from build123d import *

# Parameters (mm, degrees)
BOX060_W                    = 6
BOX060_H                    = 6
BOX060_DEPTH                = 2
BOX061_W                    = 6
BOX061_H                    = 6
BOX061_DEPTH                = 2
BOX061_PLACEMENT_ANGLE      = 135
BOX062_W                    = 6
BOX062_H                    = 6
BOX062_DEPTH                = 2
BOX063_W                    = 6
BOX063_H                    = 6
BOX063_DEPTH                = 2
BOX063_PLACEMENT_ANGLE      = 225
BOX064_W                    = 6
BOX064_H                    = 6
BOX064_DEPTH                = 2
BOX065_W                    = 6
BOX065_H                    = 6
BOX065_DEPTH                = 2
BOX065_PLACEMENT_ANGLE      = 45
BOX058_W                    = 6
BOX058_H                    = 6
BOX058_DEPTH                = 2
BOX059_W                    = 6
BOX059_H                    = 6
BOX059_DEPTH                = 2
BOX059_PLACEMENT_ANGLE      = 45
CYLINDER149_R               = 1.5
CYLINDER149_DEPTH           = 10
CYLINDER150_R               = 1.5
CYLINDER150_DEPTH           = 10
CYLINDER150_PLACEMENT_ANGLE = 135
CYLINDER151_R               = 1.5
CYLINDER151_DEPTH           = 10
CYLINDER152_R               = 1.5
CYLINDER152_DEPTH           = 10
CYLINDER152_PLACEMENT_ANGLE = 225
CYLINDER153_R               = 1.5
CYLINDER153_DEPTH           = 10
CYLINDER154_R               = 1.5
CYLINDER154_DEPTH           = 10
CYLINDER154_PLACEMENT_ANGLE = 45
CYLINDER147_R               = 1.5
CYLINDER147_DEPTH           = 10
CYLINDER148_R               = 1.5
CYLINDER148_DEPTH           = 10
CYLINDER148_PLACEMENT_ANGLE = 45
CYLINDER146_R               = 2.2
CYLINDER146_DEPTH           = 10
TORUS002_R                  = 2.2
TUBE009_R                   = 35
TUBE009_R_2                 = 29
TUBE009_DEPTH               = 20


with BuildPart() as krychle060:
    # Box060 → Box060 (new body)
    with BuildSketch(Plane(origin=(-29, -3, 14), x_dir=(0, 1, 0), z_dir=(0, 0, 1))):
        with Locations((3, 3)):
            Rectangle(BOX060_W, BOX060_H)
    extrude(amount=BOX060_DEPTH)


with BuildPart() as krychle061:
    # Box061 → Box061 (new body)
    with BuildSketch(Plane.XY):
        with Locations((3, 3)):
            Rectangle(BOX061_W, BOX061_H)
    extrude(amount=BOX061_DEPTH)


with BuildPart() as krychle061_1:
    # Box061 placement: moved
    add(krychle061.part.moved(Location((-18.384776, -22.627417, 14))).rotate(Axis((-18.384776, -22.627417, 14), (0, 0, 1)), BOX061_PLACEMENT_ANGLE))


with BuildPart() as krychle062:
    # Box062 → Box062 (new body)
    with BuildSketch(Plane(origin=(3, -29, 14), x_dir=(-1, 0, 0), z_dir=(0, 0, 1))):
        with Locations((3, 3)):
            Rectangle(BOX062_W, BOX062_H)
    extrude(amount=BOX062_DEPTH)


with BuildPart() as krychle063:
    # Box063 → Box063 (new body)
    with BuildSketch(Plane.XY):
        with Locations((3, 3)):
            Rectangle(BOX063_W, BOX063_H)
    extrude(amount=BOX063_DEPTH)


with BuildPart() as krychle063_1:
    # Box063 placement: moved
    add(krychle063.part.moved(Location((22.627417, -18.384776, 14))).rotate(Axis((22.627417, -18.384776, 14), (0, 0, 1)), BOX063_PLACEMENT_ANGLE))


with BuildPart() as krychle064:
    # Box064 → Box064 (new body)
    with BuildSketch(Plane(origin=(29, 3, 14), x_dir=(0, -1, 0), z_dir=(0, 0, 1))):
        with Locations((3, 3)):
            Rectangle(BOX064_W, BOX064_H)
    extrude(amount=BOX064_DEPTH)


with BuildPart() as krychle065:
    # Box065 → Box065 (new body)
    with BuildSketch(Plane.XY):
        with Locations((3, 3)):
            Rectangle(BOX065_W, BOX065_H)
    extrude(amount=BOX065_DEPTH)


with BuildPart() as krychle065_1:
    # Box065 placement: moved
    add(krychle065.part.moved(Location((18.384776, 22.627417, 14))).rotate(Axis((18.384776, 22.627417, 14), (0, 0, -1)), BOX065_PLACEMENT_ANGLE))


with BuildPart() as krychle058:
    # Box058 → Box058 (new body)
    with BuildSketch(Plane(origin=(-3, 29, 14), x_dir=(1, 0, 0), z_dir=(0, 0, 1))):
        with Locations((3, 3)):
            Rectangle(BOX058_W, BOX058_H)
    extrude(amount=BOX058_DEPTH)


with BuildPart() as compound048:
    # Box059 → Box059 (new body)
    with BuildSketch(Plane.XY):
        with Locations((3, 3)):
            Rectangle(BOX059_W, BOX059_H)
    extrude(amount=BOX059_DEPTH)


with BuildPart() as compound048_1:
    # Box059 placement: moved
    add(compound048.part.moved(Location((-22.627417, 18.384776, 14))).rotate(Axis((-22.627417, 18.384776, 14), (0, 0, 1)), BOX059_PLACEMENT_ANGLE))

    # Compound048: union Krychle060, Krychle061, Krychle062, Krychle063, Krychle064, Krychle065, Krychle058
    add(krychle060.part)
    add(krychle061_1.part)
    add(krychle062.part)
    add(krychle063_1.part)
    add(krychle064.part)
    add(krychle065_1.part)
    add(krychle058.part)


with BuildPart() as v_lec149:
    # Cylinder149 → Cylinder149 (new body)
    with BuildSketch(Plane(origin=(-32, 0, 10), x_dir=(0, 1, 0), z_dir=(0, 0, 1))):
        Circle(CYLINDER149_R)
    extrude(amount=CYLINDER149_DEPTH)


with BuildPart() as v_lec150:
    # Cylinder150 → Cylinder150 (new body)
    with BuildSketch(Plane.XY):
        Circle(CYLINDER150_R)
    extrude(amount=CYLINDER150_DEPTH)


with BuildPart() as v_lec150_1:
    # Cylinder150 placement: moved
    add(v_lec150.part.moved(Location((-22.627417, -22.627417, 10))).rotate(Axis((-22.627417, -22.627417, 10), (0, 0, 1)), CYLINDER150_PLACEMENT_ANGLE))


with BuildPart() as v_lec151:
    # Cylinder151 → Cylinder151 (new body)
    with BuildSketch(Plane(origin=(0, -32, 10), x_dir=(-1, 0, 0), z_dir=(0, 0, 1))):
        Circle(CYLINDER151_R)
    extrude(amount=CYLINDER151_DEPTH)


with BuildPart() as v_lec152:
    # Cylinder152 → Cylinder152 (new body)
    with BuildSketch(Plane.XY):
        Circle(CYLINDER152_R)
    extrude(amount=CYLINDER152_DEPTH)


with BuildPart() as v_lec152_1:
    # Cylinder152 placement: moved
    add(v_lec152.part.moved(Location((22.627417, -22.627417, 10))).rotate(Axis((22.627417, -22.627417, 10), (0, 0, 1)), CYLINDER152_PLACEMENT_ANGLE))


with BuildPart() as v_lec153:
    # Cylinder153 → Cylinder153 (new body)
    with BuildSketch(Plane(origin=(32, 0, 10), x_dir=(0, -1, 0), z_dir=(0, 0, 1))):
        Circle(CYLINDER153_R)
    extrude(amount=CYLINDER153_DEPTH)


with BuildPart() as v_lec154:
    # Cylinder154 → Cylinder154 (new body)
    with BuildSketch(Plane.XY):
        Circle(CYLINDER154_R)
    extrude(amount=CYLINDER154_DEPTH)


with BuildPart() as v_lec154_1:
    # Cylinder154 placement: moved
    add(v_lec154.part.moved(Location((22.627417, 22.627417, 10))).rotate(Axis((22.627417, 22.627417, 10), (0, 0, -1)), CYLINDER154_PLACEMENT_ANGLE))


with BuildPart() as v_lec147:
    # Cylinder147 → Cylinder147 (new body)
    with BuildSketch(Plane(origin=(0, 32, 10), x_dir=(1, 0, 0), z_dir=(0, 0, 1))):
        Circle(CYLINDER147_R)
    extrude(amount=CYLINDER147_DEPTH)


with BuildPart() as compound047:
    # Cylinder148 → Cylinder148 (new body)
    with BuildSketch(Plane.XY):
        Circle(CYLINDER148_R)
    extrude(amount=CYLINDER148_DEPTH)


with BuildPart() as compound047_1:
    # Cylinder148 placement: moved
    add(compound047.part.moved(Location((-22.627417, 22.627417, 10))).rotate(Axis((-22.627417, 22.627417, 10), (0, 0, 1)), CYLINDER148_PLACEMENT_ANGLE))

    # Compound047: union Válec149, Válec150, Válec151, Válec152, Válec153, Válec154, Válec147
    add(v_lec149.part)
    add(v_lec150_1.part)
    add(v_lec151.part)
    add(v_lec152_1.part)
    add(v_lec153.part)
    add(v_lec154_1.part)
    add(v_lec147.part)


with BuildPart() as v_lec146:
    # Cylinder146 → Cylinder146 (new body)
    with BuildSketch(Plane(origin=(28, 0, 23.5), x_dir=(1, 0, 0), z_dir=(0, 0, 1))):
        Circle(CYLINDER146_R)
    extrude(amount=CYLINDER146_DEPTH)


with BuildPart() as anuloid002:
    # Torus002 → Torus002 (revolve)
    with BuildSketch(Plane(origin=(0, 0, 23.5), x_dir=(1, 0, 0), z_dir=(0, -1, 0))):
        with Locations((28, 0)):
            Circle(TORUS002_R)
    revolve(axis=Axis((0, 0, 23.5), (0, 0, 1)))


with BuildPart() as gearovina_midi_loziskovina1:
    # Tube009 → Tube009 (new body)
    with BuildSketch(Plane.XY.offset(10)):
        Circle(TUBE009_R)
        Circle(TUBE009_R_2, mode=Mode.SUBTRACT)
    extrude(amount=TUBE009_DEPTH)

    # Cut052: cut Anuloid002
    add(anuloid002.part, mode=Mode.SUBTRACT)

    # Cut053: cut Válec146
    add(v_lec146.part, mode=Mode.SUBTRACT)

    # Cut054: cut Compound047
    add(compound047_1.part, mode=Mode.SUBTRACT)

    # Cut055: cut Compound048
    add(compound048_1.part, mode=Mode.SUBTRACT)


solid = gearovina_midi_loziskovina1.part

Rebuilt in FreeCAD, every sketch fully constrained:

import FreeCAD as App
import Part
import Sketcher
from FreeCAD import Vector

doc = App.newDocument("Part")
body = doc.addObject("PartDesign::Body", "Body")

# Sketch on XY plane
sketch1 = body.newObject("Sketcher::SketchObject", "Sketch")
sketch1.AttachmentSupport = (doc.getObject("XY_Plane"), [""])
sketch1.MapMode = "FlatFace"
sketch1.AttachmentOffset = App.Placement(Vector(0, 0, 14), App.Rotation())
sketch1.addGeometry(Part.LineSegment(Vector(-35, -3, 0), Vector(-29, -3, 0)), False)
sketch1.addGeometry(Part.LineSegment(Vector(-29, -3, 0), Vector(-29, 3, 0)), False)
sketch1.addGeometry(Part.LineSegment(Vector(-29, 3, 0), Vector(-35, 3, 0)), False)
sketch1.addGeometry(Part.LineSegment(Vector(-35, 3, 0), Vector(-35, -3, 0)), False)
sketch1.addConstraint(Sketcher.Constraint("Coincident", 0, 2, 1, 1))
sketch1.addConstraint(Sketcher.Constraint("Coincident", 1, 2, 2, 1))
sketch1.addConstraint(Sketcher.Constraint("Coincident", 2, 2, 3, 1))
sketch1.addConstraint(Sketcher.Constraint("Coincident", 3, 2, 0, 1))
sketch1.addConstraint(Sketcher.Constraint("Horizontal", 0))
sketch1.addConstraint(Sketcher.Constraint("Vertical", 1))
sketch1.addConstraint(Sketcher.Constraint("Horizontal", 2))
sketch1.addConstraint(Sketcher.Constraint("Vertical", 3))
sketch1.addConstraint(Sketcher.Constraint("Equal", 2, 1))
sketch1.addConstraint(Sketcher.Constraint("DistanceX", 0, 1, 0, 2, 6.0))
sketch1.addConstraint(Sketcher.Constraint("DistanceX", 0, 2, -1, 1, 29.0))
sketch1.addConstraint(Sketcher.Constraint("DistanceY", 0, 2, -1, 1, 3.0))
pad1 = body.newObject("PartDesign::Pad", "Pad")
pad1.Profile = sketch1
pad1.Length = 2
body2 = doc.addObject("PartDesign::Body", "Body001")

# Sketch on XY plane
sketch2 = body2.newObject("Sketcher::SketchObject", "Sketch001")
sketch2.AttachmentSupport = (doc.getObject("XY_Plane001"), [""])
sketch2.MapMode = "FlatFace"
sketch2.addGeometry(Part.LineSegment(Vector(0, 6, 0), Vector(0, 0, 0)), False)
sketch2.addGeometry(Part.LineSegment(Vector(0, 0, 0), Vector(6, 0, 0)), False)
sketch2.addGeometry(Part.LineSegment(Vector(6, 0, 0), Vector(6, 6, 0)), False)
sketch2.addGeometry(Part.LineSegment(Vector(6, 6, 0), Vector(0, 6, 0)), False)
sketch2.addConstraint(Sketcher.Constraint("Coincident", 0, 2, 1, 1))
sketch2.addConstraint(Sketcher.Constraint("Coincident", 1, 2, 2, 1))
sketch2.addConstraint(Sketcher.Constraint("Coincident", 2, 2, 3, 1))
sketch2.addConstraint(Sketcher.Constraint("Coincident", 3, 2, 0, 1))
sketch2.addConstraint(Sketcher.Constraint("Vertical", 0))
sketch2.addConstraint(Sketcher.Constraint("Horizontal", 1))
sketch2.addConstraint(Sketcher.Constraint("Vertical", 2))
sketch2.addConstraint(Sketcher.Constraint("Horizontal", 3))
sketch2.addConstraint(Sketcher.Constraint("Coincident", 0, 2, -1, 1))
sketch2.addConstraint(Sketcher.Constraint("Equal", 3, 0))
sketch2.addConstraint(Sketcher.Constraint("DistanceX", 1, 1, 1, 2, 6.0))
pad2 = body2.newObject("PartDesign::Pad", "Pad001")
pad2.Profile = sketch2
pad2.Length = 2
body3 = doc.addObject("PartDesign::Body", "Body002")
doc.recompute()

body2.Placement = App.Placement(Vector(-18.384776, -22.627417, 14), App.Rotation(Vector(0, 0, 1), 135))
boolean = body3.newObject("PartDesign::Boolean", "Boolean")
boolean.Type = "Fuse"
boolean.addObjects([body2])
body4 = doc.addObject("PartDesign::Body", "Body003")

# Sketch on XY plane
sketch3 = body4.newObject("Sketcher::SketchObject", "Sketch002")
sketch3.AttachmentSupport = (doc.getObject("XY_Plane003"), [""])
sketch3.MapMode = "FlatFace"
sketch3.AttachmentOffset = App.Placement(Vector(0, 0, 14), App.Rotation())
sketch3.addGeometry(Part.LineSegment(Vector(3, -35, 0), Vector(3, -29, 0)), False)
sketch3.addGeometry(Part.LineSegment(Vector(3, -29, 0), Vector(-3, -29, 0)), False)
sketch3.addGeometry(Part.LineSegment(Vector(-3, -29, 0), Vector(-3, -35, 0)), False)
sketch3.addGeometry(Part.LineSegment(Vector(-3, -35, 0), Vector(3, -35, 0)), False)
sketch3.addConstraint(Sketcher.Constraint("Coincident", 0, 2, 1, 1))
sketch3.addConstraint(Sketcher.Constraint("Coincident", 1, 2, 2, 1))
sketch3.addConstraint(Sketcher.Constraint("Coincident", 2, 2, 3, 1))
sketch3.addConstraint(Sketcher.Constraint("Coincident", 3, 2, 0, 1))
sketch3.addConstraint(Sketcher.Constraint("Vertical", 0))
sketch3.addConstraint(Sketcher.Constraint("Horizontal", 1))
sketch3.addConstraint(Sketcher.Constraint("Vertical", 2))
sketch3.addConstraint(Sketcher.Constraint("Horizontal", 3))
sketch3.addConstraint(Sketcher.Constraint("Equal", 3, 0))
sketch3.addConstraint(Sketcher.Constraint("DistanceX", 1, 2, 1, 1, 6.0))
sketch3.addConstraint(Sketcher.Constraint("DistanceX", -1, 1, 0, 2, 3.0))
sketch3.addConstraint(Sketcher.Constraint("DistanceY", 0, 2, -1, 1, 29.0))
pad3 = body4.newObject("PartDesign::Pad", "Pad002")
pad3.Profile = sketch3
pad3.Length = 2
body5 = doc.addObject("PartDesign::Body", "Body004")

# Sketch on XY plane
sketch4 = body5.newObject("Sketcher::SketchObject", "Sketch003")
sketch4.AttachmentSupport = (doc.getObject("XY_Plane004"), [""])
sketch4.MapMode = "FlatFace"
sketch4.addGeometry(Part.LineSegment(Vector(0, 6, 0), Vector(0, 0, 0)), False)
sketch4.addGeometry(Part.LineSegment(Vector(0, 0, 0), Vector(6, 0, 0)), False)
sketch4.addGeometry(Part.LineSegment(Vector(6, 0, 0), Vector(6, 6, 0)), False)
sketch4.addGeometry(Part.LineSegment(Vector(6, 6, 0), Vector(0, 6, 0)), False)
sketch4.addConstraint(Sketcher.Constraint("Coincident", 0, 2, 1, 1))
sketch4.addConstraint(Sketcher.Constraint("Coincident", 1, 2, 2, 1))
sketch4.addConstraint(Sketcher.Constraint("Coincident", 2, 2, 3, 1))
sketch4.addConstraint(Sketcher.Constraint("Coincident", 3, 2, 0, 1))
sketch4.addConstraint(Sketcher.Constraint("Vertical", 0))
sketch4.addConstraint(Sketcher.Constraint("Horizontal", 1))
sketch4.addConstraint(Sketcher.Constraint("Vertical", 2))
sketch4.addConstraint(Sketcher.Constraint("Horizontal", 3))
sketch4.addConstraint(Sketcher.Constraint("Coincident", 0, 2, -1, 1))
sketch4.addConstraint(Sketcher.Constraint("Equal", 3, 0))
sketch4.addConstraint(Sketcher.Constraint("DistanceX", 1, 1, 1, 2, 6.0))
pad4 = body5.newObject("PartDesign::Pad", "Pad003")
pad4.Profile = sketch4
pad4.Length = 2
body6 = doc.addObject("PartDesign::Body", "Body005")
doc.recompute()

body5.Placement = App.Placement(Vector(22.627417, -18.384776, 14), App.Rotation(Vector(0, 0, 1), 225))
boolean2 = body6.newObject("PartDesign::Boolean", "Boolean001")
boolean2.Type = "Fuse"
boolean2.addObjects([body5])
body7 = doc.addObject("PartDesign::Body", "Body006")

# Sketch on XY plane
sketch5 = body7.newObject("Sketcher::SketchObject", "Sketch004")
sketch5.AttachmentSupport = (doc.getObject("XY_Plane006"), [""])
sketch5.MapMode = "FlatFace"
sketch5.AttachmentOffset = App.Placement(Vector(0, 0, 14), App.Rotation())
sketch5.addGeometry(Part.LineSegment(Vector(35, 3, 0), Vector(29, 3, 0)), False)
sketch5.addGeometry(Part.LineSegment(Vector(29, 3, 0), Vector(29, -3, 0)), False)
sketch5.addGeometry(Part.LineSegment(Vector(29, -3, 0), Vector(35, -3, 0)), False)
sketch5.addGeometry(Part.LineSegment(Vector(35, -3, 0), Vector(35, 3, 0)), False)
sketch5.addConstraint(Sketcher.Constraint("Coincident", 0, 2, 1, 1))
sketch5.addConstraint(Sketcher.Constraint("Coincident", 1, 2, 2, 1))
sketch5.addConstraint(Sketcher.Constraint("Coincident", 2, 2, 3, 1))
sketch5.addConstraint(Sketcher.Constraint("Coincident", 3, 2, 0, 1))
sketch5.addConstraint(Sketcher.Constraint("Horizontal", 0))
sketch5.addConstraint(Sketcher.Constraint("Vertical", 1))
sketch5.addConstraint(Sketcher.Constraint("Horizontal", 2))
sketch5.addConstraint(Sketcher.Constraint("Vertical", 3))
sketch5.addConstraint(Sketcher.Constraint("Equal", 2, 1))
sketch5.addConstraint(Sketcher.Constraint("DistanceX", 0, 2, 0, 1, 6.0))
sketch5.addConstraint(Sketcher.Constraint("DistanceX", -1, 1, 0, 2, 29.0))
sketch5.addConstraint(Sketcher.Constraint("DistanceY", -1, 1, 0, 2, 3.0))
pad5 = body7.newObject("PartDesign::Pad", "Pad004")
pad5.Profile = sketch5
pad5.Length = 2
body8 = doc.addObject("PartDesign::Body", "Body007")

# Sketch on XY plane
sketch6 = body8.newObject("Sketcher::SketchObject", "Sketch005")
sketch6.AttachmentSupport = (doc.getObject("XY_Plane007"), [""])
sketch6.MapMode = "FlatFace"
sketch6.addGeometry(Part.LineSegment(Vector(0, 6, 0), Vector(0, 0, 0)), False)
sketch6.addGeometry(Part.LineSegment(Vector(0, 0, 0), Vector(6, 0, 0)), False)
sketch6.addGeometry(Part.LineSegment(Vector(6, 0, 0), Vector(6, 6, 0)), False)
sketch6.addGeometry(Part.LineSegment(Vector(6, 6, 0), Vector(0, 6, 0)), False)
sketch6.addConstraint(Sketcher.Constraint("Coincident", 0, 2, 1, 1))
sketch6.addConstraint(Sketcher.Constraint("Coincident", 1, 2, 2, 1))
sketch6.addConstraint(Sketcher.Constraint("Coincident", 2, 2, 3, 1))
sketch6.addConstraint(Sketcher.Constraint("Coincident", 3, 2, 0, 1))
sketch6.addConstraint(Sketcher.Constraint("Vertical", 0))
sketch6.addConstraint(Sketcher.Constraint("Horizontal", 1))
sketch6.addConstraint(Sketcher.Constraint("Vertical", 2))
sketch6.addConstraint(Sketcher.Constraint("Horizontal", 3))
sketch6.addConstraint(Sketcher.Constraint("Coincident", 0, 2, -1, 1))
sketch6.addConstraint(Sketcher.Constraint("Equal", 3, 0))
sketch6.addConstraint(Sketcher.Constraint("DistanceX", 1, 1, 1, 2, 6.0))
pad6 = body8.newObject("PartDesign::Pad", "Pad005")
pad6.Profile = sketch6
pad6.Length = 2
body9 = doc.addObject("PartDesign::Body", "Body008")
doc.recompute()

body8.Placement = App.Placement(Vector(18.384776, 22.627417, 14), App.Rotation(Vector(0, 0, -1), 45))
boolean3 = body9.newObject("PartDesign::Boolean", "Boolean002")
boolean3.Type = "Fuse"
boolean3.addObjects([body8])
body10 = doc.addObject("PartDesign::Body", "Body009")

# Sketch on XY plane
sketch7 = body10.newObject("Sketcher::SketchObject", "Sketch006")
sketch7.AttachmentSupport = (doc.getObject("XY_Plane009"), [""])
sketch7.MapMode = "FlatFace"
sketch7.AttachmentOffset = App.Placement(Vector(0, 0, 14), App.Rotation())
sketch7.addGeometry(Part.LineSegment(Vector(-3, 35, 0), Vector(-3, 29, 0)), False)
sketch7.addGeometry(Part.LineSegment(Vector(-3, 29, 0), Vector(3, 29, 0)), False)
sketch7.addGeometry(Part.LineSegment(Vector(3, 29, 0), Vector(3, 35, 0)), False)
sketch7.addGeometry(Part.LineSegment(Vector(3, 35, 0), Vector(-3, 35, 0)), False)
sketch7.addConstraint(Sketcher.Constraint("Coincident", 0, 2, 1, 1))
sketch7.addConstraint(Sketcher.Constraint("Coincident", 1, 2, 2, 1))
sketch7.addConstraint(Sketcher.Constraint("Coincident", 2, 2, 3, 1))
sketch7.addConstraint(Sketcher.Constraint("Coincident", 3, 2, 0, 1))
sketch7.addConstraint(Sketcher.Constraint("Vertical", 0))
sketch7.addConstraint(Sketcher.Constraint("Horizontal", 1))
sketch7.addConstraint(Sketcher.Constraint("Vertical", 2))
sketch7.addConstraint(Sketcher.Constraint("Horizontal", 3))
sketch7.addConstraint(Sketcher.Constraint("Equal", 3, 0))
sketch7.addConstraint(Sketcher.Constraint("DistanceX", 1, 1, 1, 2, 6.0))
sketch7.addConstraint(Sketcher.Constraint("DistanceX", 0, 2, -1, 1, 3.0))
sketch7.addConstraint(Sketcher.Constraint("DistanceY", -1, 1, 0, 2, 29.0))
pad7 = body10.newObject("PartDesign::Pad", "Pad006")
pad7.Profile = sketch7
pad7.Length = 2
body11 = doc.addObject("PartDesign::Body", "Body010")

# Sketch on XY plane
sketch8 = body11.newObject("Sketcher::SketchObject", "Sketch007")
sketch8.AttachmentSupport = (doc.getObject("XY_Plane010"), [""])
sketch8.MapMode = "FlatFace"
sketch8.addGeometry(Part.LineSegment(Vector(0, 6, 0), Vector(0, 0, 0)), False)
sketch8.addGeometry(Part.LineSegment(Vector(0, 0, 0), Vector(6, 0, 0)), False)
sketch8.addGeometry(Part.LineSegment(Vector(6, 0, 0), Vector(6, 6, 0)), False)
sketch8.addGeometry(Part.LineSegment(Vector(6, 6, 0), Vector(0, 6, 0)), False)
sketch8.addConstraint(Sketcher.Constraint("Coincident", 0, 2, 1, 1))
sketch8.addConstraint(Sketcher.Constraint("Coincident", 1, 2, 2, 1))
sketch8.addConstraint(Sketcher.Constraint("Coincident", 2, 2, 3, 1))
sketch8.addConstraint(Sketcher.Constraint("Coincident", 3, 2, 0, 1))
sketch8.addConstraint(Sketcher.Constraint("Vertical", 0))
sketch8.addConstraint(Sketcher.Constraint("Horizontal", 1))
sketch8.addConstraint(Sketcher.Constraint("Vertical", 2))
sketch8.addConstraint(Sketcher.Constraint("Horizontal", 3))
sketch8.addConstraint(Sketcher.Constraint("Coincident", 0, 2, -1, 1))
sketch8.addConstraint(Sketcher.Constraint("Equal", 3, 0))
sketch8.addConstraint(Sketcher.Constraint("DistanceX", 1, 1, 1, 2, 6.0))
pad8 = body11.newObject("PartDesign::Pad", "Pad007")
pad8.Profile = sketch8
pad8.Length = 2
body12 = doc.addObject("PartDesign::Body", "Body011")
body12.AllowCompound = True
doc.recompute()

body11.Placement = App.Placement(Vector(-22.627417, 18.384776, 14), App.Rotation(Vector(0, 0, 1), 45))
boolean4 = body12.newObject("PartDesign::Boolean", "Boolean003")
boolean4.Type = "Fuse"
boolean4.addObjects([body11])
doc.recompute()

boolean5 = body12.newObject("PartDesign::Boolean", "Boolean004")
boolean5.Type = "Fuse"
boolean5.addObjects([body])
doc.recompute()

boolean6 = body12.newObject("PartDesign::Boolean", "Boolean005")
boolean6.Type = "Fuse"
boolean6.addObjects([body3])
doc.recompute()

boolean7 = body12.newObject("PartDesign::Boolean", "Boolean006")
boolean7.Type = "Fuse"
boolean7.addObjects([body4])
doc.recompute()

boolean8 = body12.newObject("PartDesign::Boolean", "Boolean007")
boolean8.Type = "Fuse"
boolean8.addObjects([body6])
doc.recompute()

boolean9 = body12.newObject("PartDesign::Boolean", "Boolean008")
boolean9.Type = "Fuse"
boolean9.addObjects([body7])
doc.recompute()

boolean10 = body12.newObject("PartDesign::Boolean", "Boolean009")
boolean10.Type = "Fuse"
boolean10.addObjects([body9])
doc.recompute()

boolean11 = body12.newObject("PartDesign::Boolean", "Boolean010")
boolean11.Type = "Fuse"
boolean11.addObjects([body10])
body13 = doc.addObject("PartDesign::Body", "Body012")

# Sketch on XY plane
sketch9 = body13.newObject("Sketcher::SketchObject", "Sketch008")
sketch9.AttachmentSupport = (doc.getObject("XY_Plane012"), [""])
sketch9.MapMode = "FlatFace"
sketch9.AttachmentOffset = App.Placement(Vector(0, 0, 10), App.Rotation())
sketch9.addGeometry(Part.Circle(Vector(-32, 0, 0), Vector(0, 0, 1), 1.5), False)
sketch9.addConstraint(Sketcher.Constraint("PointOnObject", 0, 3, -1))
sketch9.addConstraint(Sketcher.Constraint("Diameter", 0, 3.0))
sketch9.addConstraint(Sketcher.Constraint("DistanceX", 0, 3, -1, 1, 32.0))
pad9 = body13.newObject("PartDesign::Pad", "Pad008")
pad9.Profile = sketch9
pad9.Length = 10
body14 = doc.addObject("PartDesign::Body", "Body013")

# Sketch on XY plane
sketch10 = body14.newObject("Sketcher::SketchObject", "Sketch009")
sketch10.AttachmentSupport = (doc.getObject("XY_Plane013"), [""])
sketch10.MapMode = "FlatFace"
sketch10.addGeometry(Part.Circle(Vector(0, 0, 0), Vector(0, 0, 1), 1.5), False)
sketch10.addConstraint(Sketcher.Constraint("Coincident", 0, 3, -1, 1))
sketch10.addConstraint(Sketcher.Constraint("Diameter", 0, 3.0))
pad10 = body14.newObject("PartDesign::Pad", "Pad009")
pad10.Profile = sketch10
pad10.Length = 10
body15 = doc.addObject("PartDesign::Body", "Body014")
doc.recompute()

body14.Placement = App.Placement(Vector(-22.627417, -22.627417, 10), App.Rotation(Vector(0, 0, 1), 135))
boolean12 = body15.newObject("PartDesign::Boolean", "Boolean011")
boolean12.Type = "Fuse"
boolean12.addObjects([body14])
body16 = doc.addObject("PartDesign::Body", "Body015")

# Sketch on XY plane
sketch11 = body16.newObject("Sketcher::SketchObject", "Sketch010")
sketch11.AttachmentSupport = (doc.getObject("XY_Plane015"), [""])
sketch11.MapMode = "FlatFace"
sketch11.AttachmentOffset = App.Placement(Vector(0, 0, 10), App.Rotation())
sketch11.addGeometry(Part.Circle(Vector(0, -32, 0), Vector(0, 0, 1), 1.5), False)
sketch11.addConstraint(Sketcher.Constraint("PointOnObject", 0, 3, -2))
sketch11.addConstraint(Sketcher.Constraint("Diameter", 0, 3.0))
sketch11.addConstraint(Sketcher.Constraint("DistanceY", 0, 3, -1, 1, 32.0))
pad11 = body16.newObject("PartDesign::Pad", "Pad010")
pad11.Profile = sketch11
pad11.Length = 10
body17 = doc.addObject("PartDesign::Body", "Body016")

# Sketch on XY plane
sketch12 = body17.newObject("Sketcher::SketchObject", "Sketch011")
sketch12.AttachmentSupport = (doc.getObject("XY_Plane016"), [""])
sketch12.MapMode = "FlatFace"
sketch12.addGeometry(Part.Circle(Vector(0, 0, 0), Vector(0, 0, 1), 1.5), False)
sketch12.addConstraint(Sketcher.Constraint("Coincident", 0, 3, -1, 1))
sketch12.addConstraint(Sketcher.Constraint("Diameter", 0, 3.0))
pad12 = body17.newObject("PartDesign::Pad", "Pad011")
pad12.Profile = sketch12
pad12.Length = 10
body18 = doc.addObject("PartDesign::Body", "Body017")
doc.recompute()

body17.Placement = App.Placement(Vector(22.627417, -22.627417, 10), App.Rotation(Vector(0, 0, 1), 225))
boolean13 = body18.newObject("PartDesign::Boolean", "Boolean012")
boolean13.Type = "Fuse"
boolean13.addObjects([body17])
body19 = doc.addObject("PartDesign::Body", "Body018")

# Sketch on XY plane
sketch13 = body19.newObject("Sketcher::SketchObject", "Sketch012")
sketch13.AttachmentSupport = (doc.getObject("XY_Plane018"), [""])
sketch13.MapMode = "FlatFace"
sketch13.AttachmentOffset = App.Placement(Vector(0, 0, 10), App.Rotation())
sketch13.addGeometry(Part.Circle(Vector(32, 0, 0), Vector(0, 0, 1), 1.5), False)
sketch13.addConstraint(Sketcher.Constraint("PointOnObject", 0, 3, -1))
sketch13.addConstraint(Sketcher.Constraint("Diameter", 0, 3.0))
sketch13.addConstraint(Sketcher.Constraint("DistanceX", -1, 1, 0, 3, 32.0))
pad13 = body19.newObject("PartDesign::Pad", "Pad012")
pad13.Profile = sketch13
pad13.Length = 10
body20 = doc.addObject("PartDesign::Body", "Body019")

# Sketch on XY plane
sketch14 = body20.newObject("Sketcher::SketchObject", "Sketch013")
sketch14.AttachmentSupport = (doc.getObject("XY_Plane019"), [""])
sketch14.MapMode = "FlatFace"
sketch14.addGeometry(Part.Circle(Vector(0, 0, 0), Vector(0, 0, 1), 1.5), False)
sketch14.addConstraint(Sketcher.Constraint("Coincident", 0, 3, -1, 1))
sketch14.addConstraint(Sketcher.Constraint("Diameter", 0, 3.0))
pad14 = body20.newObject("PartDesign::Pad", "Pad013")
pad14.Profile = sketch14
pad14.Length = 10
body21 = doc.addObject("PartDesign::Body", "Body020")
doc.recompute()

body20.Placement = App.Placement(Vector(22.627417, 22.627417, 10), App.Rotation(Vector(0, 0, -1), 45))
boolean14 = body21.newObject("PartDesign::Boolean", "Boolean013")
boolean14.Type = "Fuse"
boolean14.addObjects([body20])
body22 = doc.addObject("PartDesign::Body", "Body021")

# Sketch on XY plane
sketch15 = body22.newObject("Sketcher::SketchObject", "Sketch014")
sketch15.AttachmentSupport = (doc.getObject("XY_Plane021"), [""])
sketch15.MapMode = "FlatFace"
sketch15.AttachmentOffset = App.Placement(Vector(0, 0, 10), App.Rotation())
sketch15.addGeometry(Part.Circle(Vector(0, 32, 0), Vector(0, 0, 1), 1.5), False)
sketch15.addConstraint(Sketcher.Constraint("PointOnObject", 0, 3, -2))
sketch15.addConstraint(Sketcher.Constraint("Diameter", 0, 3.0))
sketch15.addConstraint(Sketcher.Constraint("DistanceY", -1, 1, 0, 3, 32.0))
pad15 = body22.newObject("PartDesign::Pad", "Pad014")
pad15.Profile = sketch15
pad15.Length = 10
body23 = doc.addObject("PartDesign::Body", "Body022")

# Sketch on XY plane
sketch16 = body23.newObject("Sketcher::SketchObject", "Sketch015")
sketch16.AttachmentSupport = (doc.getObject("XY_Plane022"), [""])
sketch16.MapMode = "FlatFace"
sketch16.addGeometry(Part.Circle(Vector(0, 0, 0), Vector(0, 0, 1), 1.5), False)
sketch16.addConstraint(Sketcher.Constraint("Coincident", 0, 3, -1, 1))
sketch16.addConstraint(Sketcher.Constraint("Diameter", 0, 3.0))
pad16 = body23.newObject("PartDesign::Pad", "Pad015")
pad16.Profile = sketch16
pad16.Length = 10
body24 = doc.addObject("PartDesign::Body", "Body023")
body24.AllowCompound = True
doc.recompute()

body23.Placement = App.Placement(Vector(-22.627417, 22.627417, 10), App.Rotation(Vector(0, 0, 1), 45))
boolean15 = body24.newObject("PartDesign::Boolean", "Boolean014")
boolean15.Type = "Fuse"
boolean15.addObjects([body23])
doc.recompute()

boolean16 = body24.newObject("PartDesign::Boolean", "Boolean015")
boolean16.Type = "Fuse"
boolean16.addObjects([body13])
doc.recompute()

boolean17 = body24.newObject("PartDesign::Boolean", "Boolean016")
boolean17.Type = "Fuse"
boolean17.addObjects([body15])
doc.recompute()

boolean18 = body24.newObject("PartDesign::Boolean", "Boolean017")
boolean18.Type = "Fuse"
boolean18.addObjects([body16])
doc.recompute()

boolean19 = body24.newObject("PartDesign::Boolean", "Boolean018")
boolean19.Type = "Fuse"
boolean19.addObjects([body18])
doc.recompute()

boolean20 = body24.newObject("PartDesign::Boolean", "Boolean019")
boolean20.Type = "Fuse"
boolean20.addObjects([body19])
doc.recompute()

boolean21 = body24.newObject("PartDesign::Boolean", "Boolean020")
boolean21.Type = "Fuse"
boolean21.addObjects([body21])
doc.recompute()

boolean22 = body24.newObject("PartDesign::Boolean", "Boolean021")
boolean22.Type = "Fuse"
boolean22.addObjects([body22])
body25 = doc.addObject("PartDesign::Body", "Body024")

# Sketch on XY plane
sketch17 = body25.newObject("Sketcher::SketchObject", "Sketch016")
sketch17.AttachmentSupport = (doc.getObject("XY_Plane024"), [""])
sketch17.MapMode = "FlatFace"
sketch17.AttachmentOffset = App.Placement(Vector(0, 0, 23.5), App.Rotation())
sketch17.addGeometry(Part.Circle(Vector(28, 0, 0), Vector(0, 0, 1), 2.2), False)
sketch17.addConstraint(Sketcher.Constraint("PointOnObject", 0, 3, -1))
sketch17.addConstraint(Sketcher.Constraint("Diameter", 0, 4.4))
sketch17.addConstraint(Sketcher.Constraint("DistanceX", -1, 1, 0, 3, 28.0))
pad17 = body25.newObject("PartDesign::Pad", "Pad016")
pad17.Profile = sketch17
pad17.Length = 10
body26 = doc.addObject("PartDesign::Body", "Body025")

# Sketch on XZ plane
sketch18 = body26.newObject("Sketcher::SketchObject", "Sketch017")
sketch18.AttachmentSupport = (doc.getObject("XZ_Plane025"), [""])
sketch18.MapMode = "FlatFace"
sketch18.addGeometry(Part.Circle(Vector(28, 23.5, 0), Vector(0, 0, 1), 2.2), False)
sketch18.addConstraint(Sketcher.Constraint("Diameter", 0, 4.4))
sketch18.addConstraint(Sketcher.Constraint("DistanceX", -1, 1, 0, 3, 28.0))
sketch18.addConstraint(Sketcher.Constraint("DistanceY", -1, 1, 0, 3, 23.5))
revolution = body26.newObject("PartDesign::Revolution", "Revolution")
revolution.Profile = sketch18
revolution.ReferenceAxis = (sketch18, ["V_Axis"])
revolution.Angle = 360
body27 = doc.addObject("PartDesign::Body", "Body026")

# Sketch on XY plane
sketch19 = body27.newObject("Sketcher::SketchObject", "Sketch018")
sketch19.AttachmentSupport = (doc.getObject("XY_Plane026"), [""])
sketch19.MapMode = "FlatFace"
sketch19.AttachmentOffset = App.Placement(Vector(0, 0, 10), App.Rotation())
sketch19.addGeometry(Part.Circle(Vector(0, 0, 0), Vector(0, 0, 1), 35), False)
sketch19.addGeometry(Part.Circle(Vector(0, 0, 0), Vector(0, 0, 1), 29), False)
sketch19.addConstraint(Sketcher.Constraint("Coincident", 0, 3, -1, 1))
sketch19.addConstraint(Sketcher.Constraint("Coincident", 1, 3, -1, 1))
sketch19.addConstraint(Sketcher.Constraint("Diameter", 0, 70.0))
sketch19.addConstraint(Sketcher.Constraint("Diameter", 1, 58.0))
pad18 = body27.newObject("PartDesign::Pad", "Pad017")
pad18.Profile = sketch19
pad18.Length = 20
doc.recompute()

boolean23 = body27.newObject("PartDesign::Boolean", "Boolean022")
boolean23.Type = "Cut"
boolean23.addObjects([body26])
doc.recompute()

boolean24 = body27.newObject("PartDesign::Boolean", "Boolean023")
boolean24.Type = "Cut"
boolean24.addObjects([body25])
doc.recompute()

boolean25 = body27.newObject("PartDesign::Boolean", "Boolean024")
boolean25.Type = "Cut"
boolean25.addObjects([body24])
doc.recompute()

boolean26 = body27.newObject("PartDesign::Boolean", "Boolean025")
boolean26.Type = "Cut"
boolean26.addObjects([body12])

doc.recompute()
